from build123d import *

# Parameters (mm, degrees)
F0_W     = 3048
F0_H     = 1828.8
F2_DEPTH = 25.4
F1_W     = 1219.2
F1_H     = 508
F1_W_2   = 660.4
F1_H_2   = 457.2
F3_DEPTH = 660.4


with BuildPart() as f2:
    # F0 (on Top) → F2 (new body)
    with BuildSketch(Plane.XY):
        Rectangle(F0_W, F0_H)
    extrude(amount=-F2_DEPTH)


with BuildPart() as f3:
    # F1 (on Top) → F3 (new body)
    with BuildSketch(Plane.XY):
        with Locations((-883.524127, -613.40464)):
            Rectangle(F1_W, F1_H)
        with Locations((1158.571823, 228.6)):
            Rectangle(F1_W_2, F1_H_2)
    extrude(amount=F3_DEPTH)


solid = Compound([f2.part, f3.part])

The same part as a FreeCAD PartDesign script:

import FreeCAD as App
import Part
import Sketcher
Q = App.Units.Quantity


def add_polygon(sketch, points):
    """Adds a closed chain of lines whose ends are joined by coincident constraints."""
    first, n = sketch.GeometryCount, len(points)
    for a, b in zip(points, points[1:] + points[:1]):
        sketch.addGeometry(Part.LineSegment(App.Vector(*a, 0), App.Vector(*b, 0)), False)
    for i in range(n):
        sketch.addConstraint(Sketcher.Constraint("Coincident", first + i, 2, first + (i + 1) % n, 1))

doc = App.newDocument("Part")
body = doc.addObject("PartDesign::Body", "Body")

# Sketch on XY plane
sketch1 = doc.addObject("Sketcher::SketchObject", "Sketch")
body.addObject(sketch1)
sketch1.AttachmentSupport = (doc.XY_Plane, [""])
sketch1.MapMode = "FlatFace"
add_polygon(sketch1, [(-1524, 914.4), (-1524, -914.4), (1524, -914.4), (1524, 914.4)])  # lines 0-3
sketch1.addConstraint(Sketcher.Constraint("Vertical", 0))
sketch1.addConstraint(Sketcher.Constraint("Horizontal", 1))
sketch1.addConstraint(Sketcher.Constraint("Vertical", 2))
sketch1.addConstraint(Sketcher.Constraint("Horizontal", 3))
sketch1.addConstraint(Sketcher.Constraint("Symmetric", 0, 2, 2, 2, -1, 1))
sketch1.addConstraint(Sketcher.Constraint("DistanceX", 1, 1, 1, 2, Q("120 in")))
sketch1.addConstraint(Sketcher.Constraint("DistanceY", 0, 2, 0, 1, Q("72 in")))
pad1 = doc.addObject("PartDesign::Pad", "Pad")
body.addObject(pad1)
pad1.Profile = sketch1
pad1.Length = Q("1 in")
pad1.Reversed = True
body2 = doc.addObject("PartDesign::Body", "Body001")
body2.AllowCompound = True

# Sketch on XY plane
sketch2 = doc.addObject("Sketcher::SketchObject", "Sketch001")
body2.addObject(sketch2)
sketch2.AttachmentSupport = (doc.getObject("XY_Plane001"), [""])
sketch2.MapMode = "FlatFace"
add_polygon(sketch2, [(-1493.124127, -359.40464), (-1493.124127, -867.40464), (-273.924127, -867.40464), (-273.924127, -359.40464)])  # lines 0-3
add_polygon(sketch2, [(828.371823, 457.2), (828.371823, 0), (1488.771823, 0), (1488.771823, 457.2)])  # lines 4-7
sketch2.addConstraint(Sketcher.Constraint("Vertical", 0))
sketch2.addConstraint(Sketcher.Constraint("Horizontal", 1))
sketch2.addConstraint(Sketcher.Constraint("Vertical", 2))
sketch2.addConstraint(Sketcher.Constraint("Horizontal", 3))
sketch2.addConstraint(Sketcher.Constraint("Vertical", 4))
sketch2.addConstraint(Sketcher.Constraint("Horizontal", 5))
sketch2.addConstraint(Sketcher.Constraint("Vertical", 6))
sketch2.addConstraint(Sketcher.Constraint("Horizontal", 7))
sketch2.addConstraint(Sketcher.Constraint("PointOnObject", 4, 2, -1))
sketch2.addConstraint(Sketcher.Constraint("DistanceX", 1, 1, 1, 2, Q("48 in")))
sketch2.addConstraint(Sketcher.Constraint("DistanceX", 5, 1, 5, 2, Q("26 in")))
sketch2.addConstraint(Sketcher.Constraint("DistanceY", 0, 2, 0, 1, Q("20 in")))
sketch2.addConstraint(Sketcher.Constraint("DistanceY", 4, 2, 4, 1, Q("18 in")))
sketch2.addConstraint(Sketcher.Constraint("DistanceY", 0, 2, -1, 1, 867.40464))
sketch2.addConstraint(Sketcher.Constraint("DistanceX", 2, 2, 4, 2, 1102.29595))
sketch2.addConstraint(Sketcher.Constraint("DistanceX", 0, 2, -1, 1, 1493.124127))
pad2 = doc.addObject("PartDesign::Pad", "Pad001")
body2.addObject(pad2)
pad2.Profile = sketch2
pad2.Length = Q("26 in")

doc.recompute()
